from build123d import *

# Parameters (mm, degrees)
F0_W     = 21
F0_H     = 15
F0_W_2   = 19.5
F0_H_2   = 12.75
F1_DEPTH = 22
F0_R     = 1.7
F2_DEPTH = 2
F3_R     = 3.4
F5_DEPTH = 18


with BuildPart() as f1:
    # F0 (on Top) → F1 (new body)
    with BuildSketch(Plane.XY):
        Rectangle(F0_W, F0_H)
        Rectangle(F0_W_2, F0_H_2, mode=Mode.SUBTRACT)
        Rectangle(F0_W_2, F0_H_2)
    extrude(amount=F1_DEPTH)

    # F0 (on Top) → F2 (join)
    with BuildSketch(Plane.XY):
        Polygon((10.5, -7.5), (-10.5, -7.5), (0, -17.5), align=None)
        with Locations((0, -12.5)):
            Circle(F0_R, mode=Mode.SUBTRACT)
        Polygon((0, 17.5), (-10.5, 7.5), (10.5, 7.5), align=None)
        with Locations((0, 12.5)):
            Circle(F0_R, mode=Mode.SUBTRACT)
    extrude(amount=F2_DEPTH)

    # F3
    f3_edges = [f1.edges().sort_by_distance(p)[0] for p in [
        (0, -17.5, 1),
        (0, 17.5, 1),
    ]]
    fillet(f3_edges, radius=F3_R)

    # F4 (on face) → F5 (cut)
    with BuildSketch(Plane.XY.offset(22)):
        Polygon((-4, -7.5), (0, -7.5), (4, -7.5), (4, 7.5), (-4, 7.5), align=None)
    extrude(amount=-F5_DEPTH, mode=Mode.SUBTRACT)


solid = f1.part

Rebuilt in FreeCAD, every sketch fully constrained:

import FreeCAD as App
import Part
import Sketcher


def edges_at(feature, points):
    """Names of the edges that pass closest to the given points."""
    edges = feature.Shape.Edges
    near = lambda p: min(range(len(edges)), key=lambda i: edges[i].distToShape(Part.Vertex(*p))[0])
    return sorted({f"Edge{near(p) + 1}" for p in points})


def add_polygon(sketch, points):
    """Adds a closed chain of lines whose ends are joined by coincident constraints."""
    first, n = sketch.GeometryCount, len(points)
    for a, b in zip(points, points[1:] + points[:1]):
        sketch.addGeometry(Part.LineSegment(App.Vector(*a, 0), App.Vector(*b, 0)), False)
    for i in range(n):
        sketch.addConstraint(Sketcher.Constraint("Coincident", first + i, 2, first + (i + 1) % n, 1))

doc = App.newDocument("Part")
params = doc.addObject("Spreadsheet::Sheet", "Params")
for row, (alias, value) in enumerate([
    ("sketch1_width", "21 mm"),
    ("sketch1_height", "15 mm"),
    ("pad1_length", "22 mm"),
    ("sketch2_diameter", "3.4 mm"),
    ("sketch2_width", "21 mm"),
    ("pad2_length", "2 mm"),
    ("fillet_radius", "3.4 mm"),
    ("sketch3_width", "8 mm"),
    ("sketch3_height", "15 mm"),
    ("pocket1_length", "18 mm"),
], start=1):
    params.set(f"A{row}", alias)
    params.set(f"B{row}", "=" + value)
    params.setAlias(f"B{row}", alias)

body = doc.addObject("PartDesign::Body", "Body")

sketch1 = body.newObject("Sketcher::SketchObject", "Sketch")
sketch1.AttachmentSupport = (doc.getObject("XY_Plane"), [""])
sketch1.MapMode = "FlatFace"
add_polygon(sketch1, [(-10, 8), (-10, -8), (10, -8), (10, 8)])
sketch1.addConstraint(Sketcher.Constraint("Vertical", 0))
sketch1.addConstraint(Sketcher.Constraint("Horizontal", 1))
sketch1.addConstraint(Sketcher.Constraint("Vertical", 2))
sketch1.addConstraint(Sketcher.Constraint("Horizontal", 3))
sketch1.addConstraint(Sketcher.Constraint("Symmetric", 0, 2, 2, 2, -1, 1))
sketch1.addConstraint(Sketcher.Constraint("DistanceX", 1, 1, 1, 2, 21.0))
sketch1.addConstraint(Sketcher.Constraint("DistanceY", 0, 2, 0, 1, 15.0))
sketch1.setExpression("Constraints[9]", "Params.sketch1_width")
sketch1.setExpression("Constraints[10]", "Params.sketch1_height")
pad1 = body.newObject("PartDesign::Pad", "Pad")
pad1.Profile = sketch1
pad1.setExpression("Length", "Params.pad1_length")

sketch2 = body.newObject("Sketcher::SketchObject", "Sketch001")
sketch2.AttachmentSupport = (doc.getObject("XY_Plane"), [""])
sketch2.MapMode = "FlatFace"
add_polygon(sketch2, [(10.5, -7.5), (-10.5, -7.5), (0, -17.5)])
sketch2.addGeometry(Part.Circle(App.Vector(0, -12.5, 0), App.Vector(0, 0, 1), 1.7), False)
add_polygon(sketch2, [(0, 17.5), (-10.5, 7.5), (10.5, 7.5)])
sketch2.addGeometry(Part.Circle(App.Vector(0, 12.5, 0), App.Vector(0, 0, 1), 1.7), False)
sketch2.addConstraint(Sketcher.Constraint("Horizontal", 0))
sketch2.addConstraint(Sketcher.Constraint("Horizontal", 5))
sketch2.addConstraint(Sketcher.Constraint("Equal", 3, 7))
sketch2.addConstraint(Sketcher.Constraint("Symmetric", 3, 3, 7, 3, -1, 1))
sketch2.addConstraint(Sketcher.Constraint("Symmetric", 2, 2, 4, 2, -1, 1))
sketch2.addConstraint(Sketcher.Constraint("Symmetric", 1, 2, 6, 2, -1, 1))
sketch2.addConstraint(Sketcher.Constraint("PointOnObject", 3, 3, -2))
sketch2.addConstraint(Sketcher.Constraint("PointOnObject", 1, 2, -2))
sketch2.addConstraint(Sketcher.Constraint("Parallel", 1, 6))
sketch2.addConstraint(Sketcher.Constraint("Vertical", 0, 2, 4, 2))
sketch2.addConstraint(Sketcher.Constraint("Diameter", 3, 3.4))
sketch2.addConstraint(Sketcher.Constraint("DistanceX", 0, 2, 0, 1, 21.0))
sketch2.addConstraint(Sketcher.Constraint("DistanceY", 3, 3, 7, 3, 25.0))
sketch2.addConstraint(Sketcher.Constraint("DistanceY", 3, 3, 0, 2, 5.0))
sketch2.addConstraint(Sketcher.Constraint("DistanceY", 1, 2, 3, 3, 5.0))
sketch2.setExpression("Constraints[16]", "Params.sketch2_diameter")
sketch2.setExpression("Constraints[17]", "Params.sketch2_width")
pad2 = body.newObject("PartDesign::Pad", "Pad001")
pad2.Profile = sketch2
pad2.setExpression("Length", "Params.pad2_length")
doc.recompute()

fillet = body.newObject("PartDesign::Fillet", "Fillet")
fillet.Base = (pad2, edges_at(pad2, [(0, -17.5, 1), (0, 17.5, 1)]))
fillet.setExpression("Radius", "Params.fillet_radius")

sketch3 = body.newObject("Sketcher::SketchObject", "Sketch002")
sketch3.AttachmentSupport = (doc.getObject("XY_Plane"), [""])
sketch3.MapMode = "FlatFace"
sketch3.AttachmentOffset = App.Placement(App.Vector(0, 0, 22), App.Rotation())
add_polygon(sketch3, [(-4, -8), (4, -8), (4, 8), (-4, 8)])
sketch3.addConstraint(Sketcher.Constraint("Horizontal", 0))
sketch3.addConstraint(Sketcher.Constraint("Vertical", 1))
sketch3.addConstraint(Sketcher.Constraint("Horizontal", 2))
sketch3.addConstraint(Sketcher.Constraint("Vertical", 3))
sketch3.addConstraint(Sketcher.Constraint("Symmetric", 0, 2, 2, 2, -1, 1))
sketch3.addConstraint(Sketcher.Constraint("DistanceX", 0, 1, 0, 2, 8.0))
sketch3.addConstraint(Sketcher.Constraint("DistanceY", 1, 1, 1, 2, 15.0))
sketch3.setExpression("Constraints[9]", "Params.sketch3_width")
sketch3.setExpression("Constraints[10]", "Params.sketch3_height")
pocket1 = body.newObject("PartDesign::Pocket", "Pocket")
pocket1.Profile = sketch3
pocket1.setExpression("Length", "Params.pocket1_length")

doc.recompute()
